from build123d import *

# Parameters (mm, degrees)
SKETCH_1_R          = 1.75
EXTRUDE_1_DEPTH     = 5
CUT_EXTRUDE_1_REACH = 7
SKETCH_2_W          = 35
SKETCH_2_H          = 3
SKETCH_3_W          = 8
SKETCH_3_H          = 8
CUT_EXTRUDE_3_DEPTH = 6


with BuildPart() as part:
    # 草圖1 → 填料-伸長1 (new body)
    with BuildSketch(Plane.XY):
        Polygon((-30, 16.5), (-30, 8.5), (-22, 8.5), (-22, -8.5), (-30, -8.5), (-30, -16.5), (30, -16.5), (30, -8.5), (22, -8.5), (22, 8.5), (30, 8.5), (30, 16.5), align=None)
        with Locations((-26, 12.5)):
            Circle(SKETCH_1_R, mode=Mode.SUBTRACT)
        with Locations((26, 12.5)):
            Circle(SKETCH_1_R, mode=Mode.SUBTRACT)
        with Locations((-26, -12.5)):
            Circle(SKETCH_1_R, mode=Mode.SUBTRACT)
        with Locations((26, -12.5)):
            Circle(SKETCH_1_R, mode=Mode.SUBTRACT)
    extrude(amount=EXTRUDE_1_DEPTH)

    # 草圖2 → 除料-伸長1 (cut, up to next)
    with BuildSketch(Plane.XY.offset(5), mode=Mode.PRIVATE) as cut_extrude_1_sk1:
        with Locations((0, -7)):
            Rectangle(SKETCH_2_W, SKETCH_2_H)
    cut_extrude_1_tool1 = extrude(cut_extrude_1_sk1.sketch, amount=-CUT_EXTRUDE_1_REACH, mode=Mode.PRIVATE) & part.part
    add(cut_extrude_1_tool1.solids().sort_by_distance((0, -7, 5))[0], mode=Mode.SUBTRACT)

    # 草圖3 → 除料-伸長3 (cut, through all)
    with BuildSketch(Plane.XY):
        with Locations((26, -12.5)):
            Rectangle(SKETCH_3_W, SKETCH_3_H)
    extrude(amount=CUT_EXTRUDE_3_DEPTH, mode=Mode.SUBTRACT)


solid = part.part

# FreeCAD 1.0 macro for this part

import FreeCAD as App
import Part
import Sketcher

V = App.Vector
Q = App.Units.Quantity

doc = App.newDocument("Part")
body = doc.addObject("PartDesign::Body", "Body")

# Sketch on XY plane
sketch1 = doc.addObject("Sketcher::SketchObject", "Sketch")
body.addObject(sketch1)
sketch1.AttachmentSupport = (doc.XY_Plane, [""])
sketch1.MapMode = "FlatFace"
sketch1.addGeometry([
    Part.LineSegment(V(-30, 16.5, 0), V(-30, 8.5, 0)),  # 0
    Part.LineSegment(V(-30, 8.5, 0), V(-22, 8.5, 0)),  # 1
    Part.LineSegment(V(-22, 8.5, 0), V(-22, -8.5, 0)),  # 2
    Part.LineSegment(V(-22, -8.5, 0), V(-30, -8.5, 0)),  # 3
    Part.LineSegment(V(-30, -8.5, 0), V(-30, -16.5, 0)),  # 4
    Part.LineSegment(V(-30, -16.5, 0), V(30, -16.5, 0)),  # 5
    Part.LineSegment(V(30, -16.5, 0), V(30, -8.5, 0)),  # 6
    Part.LineSegment(V(30, -8.5, 0), V(22, -8.5, 0)),  # 7
    Part.LineSegment(V(22, -8.5, 0), V(22, 8.5, 0)),  # 8
    Part.LineSegment(V(22, 8.5, 0), V(30, 8.5, 0)),  # 9
    Part.LineSegment(V(30, 8.5, 0), V(30, 16.5, 0)),  # 10
    Part.LineSegment(V(30, 16.5, 0), V(-30, 16.5, 0)),  # 11
    Part.Circle(V(-26, -12.5, 0), V(0, 0, 1), 1.75),  # 12
    Part.Circle(V(26, -12.5, 0), V(0, 0, 1), 1.75),  # 13
    Part.Circle(V(-26, 12.5, 0), V(0, 0, 1), 1.75),  # 14
    Part.Circle(V(26, 12.5, 0), V(0, 0, 1), 1.75),  # 15
], False)
sketch1.addConstraint([
    Sketcher.Constraint("Coincident", 0, 2, 1, 1),
    Sketcher.Constraint("Coincident", 1, 2, 2, 1),
    Sketcher.Constraint("Coincident", 2, 2, 3, 1),
    Sketcher.Constraint("Coincident", 3, 2, 4, 1),
    Sketcher.Constraint("Coincident", 4, 2, 5, 1),
    Sketcher.Constraint("Coincident", 5, 2, 6, 1),
    Sketcher.Constraint("Coincident", 6, 2, 7, 1),
    Sketcher.Constraint("Coincident", 7, 2, 8, 1),
    Sketcher.Constraint("Coincident", 8, 2, 9, 1),
    Sketcher.Constraint("Coincident", 9, 2, 10, 1),
    Sketcher.Constraint("Coincident", 10, 2, 11, 1),
    Sketcher.Constraint("Coincident", 11, 2, 0, 1),
    Sketcher.Constraint("Vertical", 0),
    Sketcher.Constraint("Horizontal", 1),
    Sketcher.Constraint("Vertical", 2),
    Sketcher.Constraint("Horizontal", 3),
    Sketcher.Constraint("Vertical", 4),
    Sketcher.Constraint("Horizontal", 5),
    Sketcher.Constraint("Vertical", 6),
    Sketcher.Constraint("Horizontal", 7),
    Sketcher.Constraint("Vertical", 8),
    Sketcher.Constraint("Horizontal", 9),
    Sketcher.Constraint("Vertical", 10),
    Sketcher.Constraint("Horizontal", 11),
    Sketcher.Constraint("Equal", 12, 13),
    Sketcher.Constraint("Equal", 13, 14),
    Sketcher.Constraint("Equal", 14, 15),
    Sketcher.Constraint("Symmetric", 13, 3, 14, 3, -1, 1),
    Sketcher.Constraint("Symmetric", 12, 3, 15, 3, -1, 1),
    Sketcher.Constraint("Symmetric", 0, 2, 6, 2, -1, 1),
    Sketcher.Constraint("Symmetric", 2, 2, 8, 2, -1, 1),
    Sketcher.Constraint("Symmetric", 4, 2, 10, 2, -1, 1),
    Sketcher.Constraint("Symmetric", 12, 3, 13, 3, -2),
    Sketcher.Constraint("Symmetric", 3, 2, 6, 2, -2),
    Sketcher.Constraint("Equal", 9, 0),
    Sketcher.Constraint("Diameter", 12, Q("3.5 mm")),
    Sketcher.Constraint("DistanceX", 1, 1, 1, 2, Q("8 mm")),
    Sketcher.Constraint("DistanceX", 5, 1, 5, 2, Q("60 mm")),
    Sketcher.Constraint("DistanceY", 2, 2, 2, 1, Q("17 mm")),
    Sketcher.Constraint("DistanceX", 12, 3, -1, 1, Q("26 mm")),
    Sketcher.Constraint("DistanceY", 12, 3, 14, 3, Q("25 mm")),
])
pad1 = doc.addObject("PartDesign::Pad", "Pad")
body.addObject(pad1)
pad1.Profile = sketch1
pad1.Length = 5

# Sketch on XY plane
sketch2 = doc.addObject("Sketcher::SketchObject", "Sketch001")
body.addObject(sketch2)
sketch2.AttachmentSupport = (doc.XY_Plane, [""])
sketch2.MapMode = "FlatFace"
sketch2.AttachmentOffset = App.Placement(V(0, 0, 5), App.Rotation())
sketch2.addGeometry([
    Part.LineSegment(V(-17.5, -5.5, 0), V(-17.5, -8.5, 0)),
    Part.LineSegment(V(-17.5, -8.5, 0), V(17.5, -8.5, 0)),
    Part.LineSegment(V(17.5, -8.5, 0), V(17.5, -5.5, 0)),
    Part.LineSegment(V(17.5, -5.5, 0), V(-17.5, -5.5, 0)),
], False)
sketch2.addConstraint([
    Sketcher.Constraint("Coincident", 0, 2, 1, 1),
    Sketcher.Constraint("Coincident", 1, 2, 2, 1),
    Sketcher.Constraint("Coincident", 2, 2, 3, 1),
    Sketcher.Constraint("Coincident", 3, 2, 0, 1),
    Sketcher.Constraint("Vertical", 0),
    Sketcher.Constraint("Horizontal", 1),
    Sketcher.Constraint("Vertical", 2),
    Sketcher.Constraint("Horizontal", 3),
    Sketcher.Constraint("DistanceX", 1, 1, 1, 2, Q("35 mm")),
    Sketcher.Constraint("DistanceY", 0, 2, 0, 1, Q("3 mm")),
    Sketcher.Constraint("DistanceX", 0, 2, -1, 1, Q("17.5 mm")),
    Sketcher.Constraint("DistanceY", 0, 2, -1, 1, Q("8.5 mm")),
])
pocket1 = doc.addObject("PartDesign::Pocket", "Pocket")
body.addObject(pocket1)
pocket1.Profile = sketch2
pocket1.Type = "UpToFirst"

# Sketch on XY plane
sketch3 = doc.addObject("Sketcher::SketchObject", "Sketch002")
body.addObject(sketch3)
sketch3.AttachmentSupport = (doc.XY_Plane, [""])
sketch3.MapMode = "FlatFace"
sketch3.addGeometry([
    Part.LineSegment(V(22, -8.5, 0), V(22, -16.5, 0)),
    Part.LineSegment(V(22, -16.5, 0), V(30, -16.5, 0)),
    Part.LineSegment(V(30, -16.5, 0), V(30, -8.5, 0)),
    Part.LineSegment(V(30, -8.5, 0), V(22, -8.5, 0)),
], False)
sketch3.addConstraint([
    Sketcher.Constraint("Coincident", 0, 2, 1, 1),
    Sketcher.Constraint("Coincident", 1, 2, 2, 1),
    Sketcher.Constraint("Coincident", 2, 2, 3, 1),
    Sketcher.Constraint("Coincident", 3, 2, 0, 1),
    Sketcher.Constraint("Vertical", 0),
    Sketcher.Constraint("Horizontal", 1),
    Sketcher.Constraint("Vertical", 2),
    Sketcher.Constraint("Horizontal", 3),
    Sketcher.Constraint("Equal", 3, 0),
    Sketcher.Constraint("DistanceX", 1, 1, 1, 2, Q("8 mm")),
    Sketcher.Constraint("DistanceX", -1, 1, 0, 2, Q("22 mm")),
    Sketcher.Constraint("DistanceY", 0, 2, -1, 1, Q("16.5 mm")),
])
pocket2 = doc.addObject("PartDesign::Pocket", "Pocket001")
body.addObject(pocket2)
pocket2.Profile = sketch3
pocket2.Type = "ThroughAll"
pocket2.Reversed = True

doc.recompute()
